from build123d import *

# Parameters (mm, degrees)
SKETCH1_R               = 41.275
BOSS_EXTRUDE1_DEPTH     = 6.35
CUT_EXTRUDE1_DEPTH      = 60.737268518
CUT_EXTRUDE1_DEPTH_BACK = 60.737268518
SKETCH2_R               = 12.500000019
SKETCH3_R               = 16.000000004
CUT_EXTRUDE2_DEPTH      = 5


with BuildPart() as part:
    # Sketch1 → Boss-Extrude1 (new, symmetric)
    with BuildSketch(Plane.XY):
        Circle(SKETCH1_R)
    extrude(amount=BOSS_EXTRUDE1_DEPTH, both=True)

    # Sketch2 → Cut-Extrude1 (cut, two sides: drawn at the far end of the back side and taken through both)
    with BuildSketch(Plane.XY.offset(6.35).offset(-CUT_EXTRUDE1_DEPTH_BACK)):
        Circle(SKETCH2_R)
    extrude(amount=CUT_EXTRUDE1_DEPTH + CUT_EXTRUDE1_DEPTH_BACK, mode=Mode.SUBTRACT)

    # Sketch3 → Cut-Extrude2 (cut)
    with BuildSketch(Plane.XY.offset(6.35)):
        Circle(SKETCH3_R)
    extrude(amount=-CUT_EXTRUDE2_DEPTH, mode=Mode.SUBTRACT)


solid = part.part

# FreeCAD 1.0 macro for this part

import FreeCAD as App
import Part
import Sketcher

doc = App.newDocument("Part")
body = doc.addObject("PartDesign::Body", "Body")

sketch1 = body.newObject("Sketcher::SketchObject", "Sketch")
sketch1.AttachmentSupport = (doc.getObject("XY_Plane"), [""])
sketch1.MapMode = "FlatFace"
sketch1.addGeometry(Part.Circle(App.Vector(0, 0, 0), App.Vector(0, 0, 1), 41), False)
sketch1.addConstraint([
    Sketcher.Constraint("Coincident", 0, 3, -1, 1),
    Sketcher.Constraint("Diameter", 0, 82.55),
])
pad1 = body.newObject("PartDesign::Pad", "Pad")
pad1.Profile = sketch1
pad1.Length = 12.7
pad1.Midplane = True

sketch2 = body.newObject("Sketcher::SketchObject", "Sketch001")
sketch2.AttachmentSupport = (doc.getObject("XY_Plane"), [""])
sketch2.MapMode = "FlatFace"
sketch2.AttachmentOffset = App.Placement(App.Vector(0, 0, 6.35), App.Rotation())
sketch2.addGeometry(Part.Circle(App.Vector(0, 0, 0), App.Vector(0, 0, 1), 13), False)
sketch2.addConstraint([
    Sketcher.Constraint("Coincident", 0, 3, -1, 1),
    Sketcher.Constraint("Diameter", 0, 25.0),
])
pocket1 = body.newObject("PartDesign::Pocket", "Pocket")
pocket1.Profile = sketch2
pocket1.Type = "ThroughAll"
pocket1.Midplane = True

sketch3 = body.newObject("Sketcher::SketchObject", "Sketch002")
sketch3.AttachmentSupport = (doc.getObject("XY_Plane"), [""])
sketch3.MapMode = "FlatFace"
sketch3.AttachmentOffset = App.Placement(App.Vector(0, 0, 6.35), App.Rotation())
sketch3.addGeometry(Part.Circle(App.Vector(0, 0, 0), App.Vector(0, 0, 1), 16), False)
sketch3.addConstraint([
    Sketcher.Constraint("Coincident", 0, 3, -1, 1),
    Sketcher.Constraint("Diameter", 0, 32.0),
])
pocket2 = body.newObject("PartDesign::Pocket", "Pocket001")
pocket2.Profile = sketch3
pocket2.Length = 5

doc.recompute()
